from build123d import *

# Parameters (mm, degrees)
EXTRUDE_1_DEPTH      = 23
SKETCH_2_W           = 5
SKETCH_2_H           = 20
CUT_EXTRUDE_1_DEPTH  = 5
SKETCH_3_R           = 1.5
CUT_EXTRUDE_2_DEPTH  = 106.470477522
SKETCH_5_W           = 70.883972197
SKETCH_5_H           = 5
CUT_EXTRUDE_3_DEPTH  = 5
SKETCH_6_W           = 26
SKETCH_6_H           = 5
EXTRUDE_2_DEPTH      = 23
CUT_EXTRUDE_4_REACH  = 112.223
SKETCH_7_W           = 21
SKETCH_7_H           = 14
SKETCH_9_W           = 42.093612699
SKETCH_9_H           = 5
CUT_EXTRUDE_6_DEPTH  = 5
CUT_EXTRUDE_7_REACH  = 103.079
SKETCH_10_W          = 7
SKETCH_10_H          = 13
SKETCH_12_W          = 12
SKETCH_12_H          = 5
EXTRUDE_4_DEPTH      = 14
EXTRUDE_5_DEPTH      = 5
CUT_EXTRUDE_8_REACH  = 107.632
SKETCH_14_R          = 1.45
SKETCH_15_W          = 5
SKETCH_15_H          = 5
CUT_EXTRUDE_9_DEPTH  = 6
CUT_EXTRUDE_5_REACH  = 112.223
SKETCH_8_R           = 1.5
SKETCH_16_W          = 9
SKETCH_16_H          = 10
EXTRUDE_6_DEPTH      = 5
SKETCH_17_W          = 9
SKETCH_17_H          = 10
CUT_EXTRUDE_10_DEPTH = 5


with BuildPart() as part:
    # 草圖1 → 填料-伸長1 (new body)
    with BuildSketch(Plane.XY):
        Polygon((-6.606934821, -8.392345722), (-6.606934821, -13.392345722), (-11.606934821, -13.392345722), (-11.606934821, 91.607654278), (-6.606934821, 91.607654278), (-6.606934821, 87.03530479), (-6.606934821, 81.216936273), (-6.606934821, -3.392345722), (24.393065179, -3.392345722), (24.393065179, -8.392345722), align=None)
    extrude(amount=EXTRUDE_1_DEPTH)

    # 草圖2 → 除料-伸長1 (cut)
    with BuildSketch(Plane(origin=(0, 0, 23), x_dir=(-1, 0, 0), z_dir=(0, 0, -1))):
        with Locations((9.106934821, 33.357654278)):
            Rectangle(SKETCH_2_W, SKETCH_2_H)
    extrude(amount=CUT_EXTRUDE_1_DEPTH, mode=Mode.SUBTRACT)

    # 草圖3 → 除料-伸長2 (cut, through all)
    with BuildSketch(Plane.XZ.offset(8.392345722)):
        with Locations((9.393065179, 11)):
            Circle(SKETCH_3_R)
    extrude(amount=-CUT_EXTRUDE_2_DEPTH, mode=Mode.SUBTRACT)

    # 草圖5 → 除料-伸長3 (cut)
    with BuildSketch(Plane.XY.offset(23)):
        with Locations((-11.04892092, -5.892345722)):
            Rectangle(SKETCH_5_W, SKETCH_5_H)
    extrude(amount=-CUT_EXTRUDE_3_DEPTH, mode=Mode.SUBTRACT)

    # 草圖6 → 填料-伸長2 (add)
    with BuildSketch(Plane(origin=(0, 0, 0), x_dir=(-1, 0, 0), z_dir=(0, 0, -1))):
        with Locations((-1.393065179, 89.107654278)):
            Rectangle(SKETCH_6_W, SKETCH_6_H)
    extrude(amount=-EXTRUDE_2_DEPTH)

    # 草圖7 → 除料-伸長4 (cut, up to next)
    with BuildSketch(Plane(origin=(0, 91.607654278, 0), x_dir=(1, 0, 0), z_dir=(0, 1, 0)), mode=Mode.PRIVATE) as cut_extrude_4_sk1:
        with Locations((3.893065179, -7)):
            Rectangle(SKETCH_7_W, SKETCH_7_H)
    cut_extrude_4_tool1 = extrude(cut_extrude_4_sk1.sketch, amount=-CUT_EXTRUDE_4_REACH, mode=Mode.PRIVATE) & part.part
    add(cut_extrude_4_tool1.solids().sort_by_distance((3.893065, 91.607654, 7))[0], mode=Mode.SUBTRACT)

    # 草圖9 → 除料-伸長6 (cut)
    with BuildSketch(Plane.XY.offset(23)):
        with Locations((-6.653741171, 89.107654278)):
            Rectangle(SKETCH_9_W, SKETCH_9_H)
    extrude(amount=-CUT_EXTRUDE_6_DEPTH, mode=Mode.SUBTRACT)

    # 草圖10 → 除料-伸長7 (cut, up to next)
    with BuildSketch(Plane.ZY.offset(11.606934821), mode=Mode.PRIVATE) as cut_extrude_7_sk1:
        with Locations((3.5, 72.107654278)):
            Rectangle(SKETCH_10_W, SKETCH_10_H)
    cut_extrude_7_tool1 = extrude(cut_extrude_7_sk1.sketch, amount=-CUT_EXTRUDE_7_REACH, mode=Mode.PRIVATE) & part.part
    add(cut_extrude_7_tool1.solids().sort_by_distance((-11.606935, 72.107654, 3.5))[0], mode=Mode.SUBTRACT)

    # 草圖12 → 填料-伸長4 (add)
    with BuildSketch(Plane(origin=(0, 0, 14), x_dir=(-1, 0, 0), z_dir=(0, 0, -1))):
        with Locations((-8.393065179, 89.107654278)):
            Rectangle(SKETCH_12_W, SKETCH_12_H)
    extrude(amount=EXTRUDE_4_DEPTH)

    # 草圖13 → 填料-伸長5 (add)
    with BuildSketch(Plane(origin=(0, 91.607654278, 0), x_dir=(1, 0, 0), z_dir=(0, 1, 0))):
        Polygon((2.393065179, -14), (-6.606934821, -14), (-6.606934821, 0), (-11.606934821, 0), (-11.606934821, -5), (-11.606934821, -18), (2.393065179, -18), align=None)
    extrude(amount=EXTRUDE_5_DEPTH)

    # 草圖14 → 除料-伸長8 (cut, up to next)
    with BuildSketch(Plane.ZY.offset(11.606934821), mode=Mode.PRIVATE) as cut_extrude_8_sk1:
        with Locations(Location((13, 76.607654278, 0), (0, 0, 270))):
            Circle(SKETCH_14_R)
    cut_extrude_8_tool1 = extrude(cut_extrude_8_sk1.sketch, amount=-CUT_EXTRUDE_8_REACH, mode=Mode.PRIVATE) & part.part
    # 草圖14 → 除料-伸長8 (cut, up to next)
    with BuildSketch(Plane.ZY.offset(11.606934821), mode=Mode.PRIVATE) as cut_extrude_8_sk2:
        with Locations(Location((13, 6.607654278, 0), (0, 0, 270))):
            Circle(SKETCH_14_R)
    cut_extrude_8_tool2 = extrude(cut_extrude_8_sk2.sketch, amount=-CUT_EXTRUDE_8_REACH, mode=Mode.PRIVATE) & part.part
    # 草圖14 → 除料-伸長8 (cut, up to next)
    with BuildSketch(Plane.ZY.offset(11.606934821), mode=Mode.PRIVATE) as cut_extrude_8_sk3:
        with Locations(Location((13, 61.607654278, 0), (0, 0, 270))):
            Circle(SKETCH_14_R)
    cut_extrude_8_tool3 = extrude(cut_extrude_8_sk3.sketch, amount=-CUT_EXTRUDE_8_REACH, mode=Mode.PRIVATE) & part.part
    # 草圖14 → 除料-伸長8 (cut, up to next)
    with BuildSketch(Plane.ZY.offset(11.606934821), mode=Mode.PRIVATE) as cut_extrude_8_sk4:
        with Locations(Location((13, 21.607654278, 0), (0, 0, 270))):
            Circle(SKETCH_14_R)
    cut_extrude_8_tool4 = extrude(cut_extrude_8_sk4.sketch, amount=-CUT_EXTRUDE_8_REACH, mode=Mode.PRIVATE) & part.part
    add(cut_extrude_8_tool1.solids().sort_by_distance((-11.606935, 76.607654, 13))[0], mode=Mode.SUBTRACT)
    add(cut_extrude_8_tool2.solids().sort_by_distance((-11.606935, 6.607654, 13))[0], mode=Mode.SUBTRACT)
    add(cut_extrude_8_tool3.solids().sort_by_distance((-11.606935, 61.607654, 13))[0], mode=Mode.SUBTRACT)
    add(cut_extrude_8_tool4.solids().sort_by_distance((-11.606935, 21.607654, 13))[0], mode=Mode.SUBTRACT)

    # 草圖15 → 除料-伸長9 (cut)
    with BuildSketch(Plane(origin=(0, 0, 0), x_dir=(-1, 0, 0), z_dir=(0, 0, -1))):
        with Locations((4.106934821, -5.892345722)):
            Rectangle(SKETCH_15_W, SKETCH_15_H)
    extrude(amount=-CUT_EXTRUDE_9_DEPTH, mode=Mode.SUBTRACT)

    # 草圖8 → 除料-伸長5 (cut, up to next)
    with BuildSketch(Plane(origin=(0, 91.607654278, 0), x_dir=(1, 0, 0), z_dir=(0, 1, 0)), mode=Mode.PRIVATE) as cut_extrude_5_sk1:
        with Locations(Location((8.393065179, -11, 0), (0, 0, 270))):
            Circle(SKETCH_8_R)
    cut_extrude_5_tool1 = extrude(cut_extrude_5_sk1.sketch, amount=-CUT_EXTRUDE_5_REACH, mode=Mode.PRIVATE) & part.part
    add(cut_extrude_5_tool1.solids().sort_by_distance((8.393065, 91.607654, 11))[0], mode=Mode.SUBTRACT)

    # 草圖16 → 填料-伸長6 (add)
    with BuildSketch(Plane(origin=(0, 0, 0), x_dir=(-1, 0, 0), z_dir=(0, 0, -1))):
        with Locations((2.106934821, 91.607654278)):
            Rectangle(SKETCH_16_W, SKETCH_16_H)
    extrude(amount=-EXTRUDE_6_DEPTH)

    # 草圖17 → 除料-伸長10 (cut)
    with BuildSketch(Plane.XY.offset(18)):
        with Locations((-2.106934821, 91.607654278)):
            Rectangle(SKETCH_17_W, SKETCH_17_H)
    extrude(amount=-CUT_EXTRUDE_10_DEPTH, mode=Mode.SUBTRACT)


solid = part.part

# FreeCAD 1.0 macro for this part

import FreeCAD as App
import Part
import Sketcher

V = App.Vector
Q = App.Units.Quantity


def add_polygon(sketch, points):
    """Adds a closed chain of lines whose ends are joined by coincident constraints."""
    first, n = sketch.GeometryCount, len(points)
    for a, b in zip(points, points[1:] + points[:1]):
        sketch.addGeometry(Part.LineSegment(App.Vector(*a, 0), App.Vector(*b, 0)), False)
    for i in range(n):
        sketch.addConstraint(Sketcher.Constraint("Coincident", first + i, 2, first + (i + 1) % n, 1))

doc = App.newDocument("Part")
body = doc.addObject("PartDesign::Body", "Body")

sketch1 = body.newObject("Sketcher::SketchObject", "Sketch")
sketch1.AttachmentSupport = (doc.getObject("XY_Plane"), [""])
sketch1.MapMode = "FlatFace"
add_polygon(sketch1, [(-6.606935, -13.392346), (-6.606935, -8.392346), (24.393065, -8.392346), (24.393065, -3.392346), (-6.606935, -3.392346), (-6.606935, 91.607654), (-11.606935, 91.607654), (-11.606935, -13.392346)])
sketch1.addConstraint(Sketcher.Constraint("Vertical", 0))
sketch1.addConstraint(Sketcher.Constraint("Horizontal", 1))
sketch1.addConstraint(Sketcher.Constraint("Vertical", 2))
sketch1.addConstraint(Sketcher.Constraint("Horizontal", 3))
sketch1.addConstraint(Sketcher.Constraint("Vertical", 4))
sketch1.addConstraint(Sketcher.Constraint("Horizontal", 5))
sketch1.addConstraint(Sketcher.Constraint("Vertical", 6))
sketch1.addConstraint(Sketcher.Constraint("Horizontal", 7))
sketch1.addConstraint(Sketcher.Constraint("Vertical", 0, 2, 3, 2))
sketch1.addConstraint(Sketcher.Constraint("Equal", 7, 0))
sketch1.addConstraint(Sketcher.Constraint("Equal", 0, 2))
sketch1.addConstraint(Sketcher.Constraint("DistanceX", 1, 1, 1, 2, Q("31 mm")))
sketch1.addConstraint(Sketcher.Constraint("DistanceX", 5, 2, 5, 1, Q("5 mm")))
sketch1.addConstraint(Sketcher.Constraint("DistanceY", 4, 1, 4, 2, Q("95 mm")))
sketch1.addConstraint(Sketcher.Constraint("DistanceX", 0, 2, -1, 1, Q("6.606935 mm")))
sketch1.addConstraint(Sketcher.Constraint("DistanceY", 0, 2, -1, 1, Q("8.392346 mm")))
pad1 = body.newObject("PartDesign::Pad", "Pad")
pad1.Profile = sketch1
pad1.Length = 23

sketch2 = body.newObject("Sketcher::SketchObject", "Sketch001")
sketch2.AttachmentSupport = (doc.getObject("XY_Plane"), [""])
sketch2.MapMode = "FlatFace"
sketch2.AttachmentOffset = App.Placement(V(0, 0, 23), App.Rotation())
add_polygon(sketch2, [(-6.606935, 43.357654), (-6.606935, 23.357654), (-11.606935, 23.357654), (-11.606935, 43.357654)])
sketch2.addConstraint(Sketcher.Constraint("Vertical", 0))
sketch2.addConstraint(Sketcher.Constraint("Horizontal", 1))
sketch2.addConstraint(Sketcher.Constraint("Vertical", 2))
sketch2.addConstraint(Sketcher.Constraint("Horizontal", 3))
sketch2.addConstraint(Sketcher.Constraint("DistanceX", 1, 2, 1, 1, Q("5 mm")))
sketch2.addConstraint(Sketcher.Constraint("DistanceY", 0, 2, 0, 1, Q("20 mm")))
sketch2.addConstraint(Sketcher.Constraint("DistanceX", 0, 2, -1, 1, Q("6.606935 mm")))
sketch2.addConstraint(Sketcher.Constraint("DistanceY", -1, 1, 0, 2, Q("23.357654 mm")))
pocket1 = body.newObject("PartDesign::Pocket", "Pocket")
pocket1.Profile = sketch2
pocket1.Length = 5

sketch3 = body.newObject("Sketcher::SketchObject", "Sketch002")
sketch3.AttachmentSupport = (doc.getObject("XZ_Plane"), [""])
sketch3.MapMode = "FlatFace"
sketch3.AttachmentOffset = App.Placement(V(0, 0, 8.392346), App.Rotation())
sketch3.addGeometry(Part.Circle(V(9.393065, 11, 0), V(0, 0, 1), 1.5), False)
sketch3.addConstraint(Sketcher.Constraint("Diameter", 0, Q("3 mm")))
sketch3.addConstraint(Sketcher.Constraint("DistanceY", -1, 1, 0, 3, Q("11 mm")))
sketch3.addConstraint(Sketcher.Constraint("DistanceX", -1, 1, 0, 3, Q("9.393065 mm")))
pocket2 = body.newObject("PartDesign::Pocket", "Pocket001")
pocket2.Profile = sketch3
pocket2.Type = "ThroughAll"

sketch4 = body.newObject("Sketcher::SketchObject", "Sketch003")
sketch4.AttachmentSupport = (doc.getObject("XY_Plane"), [""])
sketch4.MapMode = "FlatFace"
sketch4.AttachmentOffset = App.Placement(V(0, 0, 23), App.Rotation())
add_polygon(sketch4, [(-46.490907, -3.392346), (-46.490907, -8.392346), (24.393065, -8.392346), (24.393065, -3.392346)])
sketch4.addConstraint(Sketcher.Constraint("Vertical", 0))
sketch4.addConstraint(Sketcher.Constraint("Horizontal", 1))
sketch4.addConstraint(Sketcher.Constraint("Vertical", 2))
sketch4.addConstraint(Sketcher.Constraint("Horizontal", 3))
sketch4.addConstraint(Sketcher.Constraint("DistanceY", 0, 2, 0, 1, Q("5 mm")))
sketch4.addConstraint(Sketcher.Constraint("DistanceX", 1, 1, 1, 2, Q("70.883972 mm")))
sketch4.addConstraint(Sketcher.Constraint("DistanceX", 0, 2, -1, 1, Q("46.490907 mm")))
sketch4.addConstraint(Sketcher.Constraint("DistanceY", 0, 2, -1, 1, Q("8.392346 mm")))
pocket3 = body.newObject("PartDesign::Pocket", "Pocket002")
pocket3.Profile = sketch4
pocket3.Length = 5

sketch5 = body.newObject("Sketcher::SketchObject", "Sketch004")
sketch5.AttachmentSupport = (doc.getObject("XY_Plane"), [""])
sketch5.MapMode = "FlatFace"
add_polygon(sketch5, [(14.393065, 91.607654), (14.393065, 86.607654), (-11.606935, 86.607654), (-11.606935, 91.607654)])
sketch5.addConstraint(Sketcher.Constraint("Vertical", 0))
sketch5.addConstraint(Sketcher.Constraint("Horizontal", 1))
sketch5.addConstraint(Sketcher.Constraint("Vertical", 2))
sketch5.addConstraint(Sketcher.Constraint("Horizontal", 3))
sketch5.addConstraint(Sketcher.Constraint("DistanceX", 1, 2, 1, 1, Q("26 mm")))
sketch5.addConstraint(Sketcher.Constraint("DistanceY", 0, 2, 0, 1, Q("5 mm")))
sketch5.addConstraint(Sketcher.Constraint("DistanceX", -1, 1, 0, 2, Q("14.393065 mm")))
sketch5.addConstraint(Sketcher.Constraint("DistanceY", -1, 1, 0, 2, Q("86.607654 mm")))
pad2 = body.newObject("PartDesign::Pad", "Pad001")
pad2.Profile = sketch5
pad2.Length = 23

sketch6 = body.newObject("Sketcher::SketchObject", "Sketch005")
sketch6.AttachmentSupport = (doc.getObject("XZ_Plane"), [""])
sketch6.MapMode = "FlatFace"
sketch6.AttachmentOffset = App.Placement(V(0, 0, -91.607654), App.Rotation())
add_polygon(sketch6, [(-6.606935, 0), (-6.606935, 14), (14.393065, 14), (14.393065, 0)])
sketch6.addConstraint(Sketcher.Constraint("Vertical", 0))
sketch6.addConstraint(Sketcher.Constraint("Horizontal", 1))
sketch6.addConstraint(Sketcher.Constraint("Vertical", 2))
sketch6.addConstraint(Sketcher.Constraint("Horizontal", 3))
sketch6.addConstraint(Sketcher.Constraint("PointOnObject", 2, 2, -1))
sketch6.addConstraint(Sketcher.Constraint("DistanceX", 1, 1, 1, 2, Q("21 mm")))
sketch6.addConstraint(Sketcher.Constraint("DistanceY", 0, 1, 0, 2, Q("14 mm")))
sketch6.addConstraint(Sketcher.Constraint("DistanceX", 0, 2, -1, 1, Q("6.606935 mm")))
pocket4 = body.newObject("PartDesign::Pocket", "Pocket003")
pocket4.Profile = sketch6
pocket4.Type = "UpToFirst"
pocket4.Reversed = True

sketch7 = body.newObject("Sketcher::SketchObject", "Sketch006")
sketch7.AttachmentSupport = (doc.getObject("XY_Plane"), [""])
sketch7.MapMode = "FlatFace"
sketch7.AttachmentOffset = App.Placement(V(0, 0, 23), App.Rotation())
add_polygon(sketch7, [(-27.700548, 91.607654), (-27.700548, 86.607654), (14.393065, 86.607654), (14.393065, 91.607654)])
sketch7.addConstraint(Sketcher.Constraint("Vertical", 0))
sketch7.addConstraint(Sketcher.Constraint("Horizontal", 1))
sketch7.addConstraint(Sketcher.Constraint("Vertical", 2))
sketch7.addConstraint(Sketcher.Constraint("Horizontal", 3))
sketch7.addConstraint(Sketcher.Constraint("DistanceY", 0, 2, 0, 1, Q("5 mm")))
sketch7.addConstraint(Sketcher.Constraint("DistanceX", 1, 1, 1, 2, Q("42.093613 mm")))
sketch7.addConstraint(Sketcher.Constraint("DistanceX", 0, 2, -1, 1, Q("27.700548 mm")))
sketch7.addConstraint(Sketcher.Constraint("DistanceY", -1, 1, 0, 2, Q("86.607654 mm")))
pocket5 = body.newObject("PartDesign::Pocket", "Pocket004")
pocket5.Profile = sketch7
pocket5.Length = 5

sketch8 = body.newObject("Sketcher::SketchObject", "Sketch007")
sketch8.AttachmentSupport = (doc.getObject("YZ_Plane"), [""])
sketch8.MapMode = "FlatFace"
sketch8.AttachmentOffset = App.Placement(V(0, 0, -11.606935), App.Rotation())
add_polygon(sketch8, [(78.607654, 0), (65.607654, 0), (65.607654, 7), (78.607654, 7)])
sketch8.addConstraint(Sketcher.Constraint("Horizontal", 0))
sketch8.addConstraint(Sketcher.Constraint("Vertical", 1))
sketch8.addConstraint(Sketcher.Constraint("Horizontal", 2))
sketch8.addConstraint(Sketcher.Constraint("Vertical", 3))
sketch8.addConstraint(Sketcher.Constraint("PointOnObject", 0, 2, -1))
sketch8.addConstraint(Sketcher.Constraint("DistanceX", 0, 2, 0, 1, Q("13 mm")))
sketch8.addConstraint(Sketcher.Constraint("DistanceY", 1, 1, 1, 2, Q("7 mm")))
sketch8.addConstraint(Sketcher.Constraint("DistanceX", -1, 1, 0, 2, Q("65.607654 mm")))
pocket6 = body.newObject("PartDesign::Pocket", "Pocket005")
pocket6.Profile = sketch8
pocket6.Type = "UpToFirst"
pocket6.Reversed = True

sketch9 = body.newObject("Sketcher::SketchObject", "Sketch008")
sketch9.AttachmentSupport = (doc.getObject("XY_Plane"), [""])
sketch9.MapMode = "FlatFace"
sketch9.AttachmentOffset = App.Placement(V(0, 0, 14), App.Rotation())
add_polygon(sketch9, [(14.393065, 91.607654), (14.393065, 86.607654), (2.393065, 86.607654), (2.393065, 91.607654)])
sketch9.addConstraint(Sketcher.Constraint("Vertical", 0))
sketch9.addConstraint(Sketcher.Constraint("Horizontal", 1))
sketch9.addConstraint(Sketcher.Constraint("Vertical", 2))
sketch9.addConstraint(Sketcher.Constraint("Horizontal", 3))
sketch9.addConstraint(Sketcher.Constraint("DistanceX", 1, 2, 1, 1, Q("12 mm")))
sketch9.addConstraint(Sketcher.Constraint("DistanceY", 0, 2, 0, 1, Q("5 mm")))
sketch9.addConstraint(Sketcher.Constraint("DistanceX", -1, 1, 0, 2, Q("14.393065 mm")))
sketch9.addConstraint(Sketcher.Constraint("DistanceY", -1, 1, 0, 2, Q("86.607654 mm")))
pad3 = body.newObject("PartDesign::Pad", "Pad002")
pad3.Profile = sketch9
pad3.Length = 14
pad3.Reversed = True

sketch10 = body.newObject("Sketcher::SketchObject", "Sketch009")
sketch10.AttachmentSupport = (doc.getObject("XZ_Plane"), [""])
sketch10.MapMode = "FlatFace"
sketch10.AttachmentOffset = App.Placement(V(0, 0, -91.607654), App.Rotation())
add_polygon(sketch10, [(2.393065, 14), (-6.606935, 14), (-6.606935, 0), (-11.606935, 0), (-11.606935, 18), (2.393065, 18)])
sketch10.addConstraint(Sketcher.Constraint("Horizontal", 0))
sketch10.addConstraint(Sketcher.Constraint("Vertical", 1))
sketch10.addConstraint(Sketcher.Constraint("Horizontal", 2))
sketch10.addConstraint(Sketcher.Constraint("Vertical", 3))
sketch10.addConstraint(Sketcher.Constraint("Horizontal", 4))
sketch10.addConstraint(Sketcher.Constraint("Vertical", 5))
sketch10.addConstraint(Sketcher.Constraint("PointOnObject", 1, 2, -1))
sketch10.addConstraint(Sketcher.Constraint("Equal", 4, 1))
sketch10.addConstraint(Sketcher.Constraint("DistanceX", 0, 2, 0, 1, Q("9 mm")))
sketch10.addConstraint(Sketcher.Constraint("DistanceX", 2, 2, 2, 1, Q("5 mm")))
sketch10.addConstraint(Sketcher.Constraint("DistanceY", 3, 1, 3, 2, Q("18 mm")))
sketch10.addConstraint(Sketcher.Constraint("DistanceX", 0, 2, -1, 1, Q("6.606935 mm")))
pad4 = body.newObject("PartDesign::Pad", "Pad003")
pad4.Profile = sketch10
pad4.Length = 5
pad4.Reversed = True

sketch11 = body.newObject("Sketcher::SketchObject", "Sketch010")
sketch11.AttachmentSupport = (doc.getObject("YZ_Plane"), [""])
sketch11.MapMode = "FlatFace"
sketch11.AttachmentOffset = App.Placement(V(0, 0, -11.606935), App.Rotation())
sketch11.addGeometry(Part.Circle(V(76.607654, 13, 0), V(0, 0, 1), 1.45), False)
sketch11.addConstraint(Sketcher.Constraint("Diameter", 0, Q("2.9 mm")))
sketch11.addConstraint(Sketcher.Constraint("DistanceY", -1, 1, 0, 3, Q("13 mm")))
sketch11.addConstraint(Sketcher.Constraint("DistanceX", -1, 1, 0, 3, Q("76.607654 mm")))
pocket7 = body.newObject("PartDesign::Pocket", "Pocket006")
pocket7.Profile = sketch11
pocket7.Type = "UpToFirst"
pocket7.Reversed = True

sketch12 = body.newObject("Sketcher::SketchObject", "Sketch011")
sketch12.AttachmentSupport = (doc.getObject("YZ_Plane"), [""])
sketch12.MapMode = "FlatFace"
sketch12.AttachmentOffset = App.Placement(V(0, 0, -11.606935), App.Rotation())
sketch12.addGeometry(Part.Circle(V(6.607654, 13, 0), V(0, 0, 1), 1.45), False)
sketch12.addConstraint(Sketcher.Constraint("Diameter", 0, Q("2.9 mm")))
sketch12.addConstraint(Sketcher.Constraint("DistanceY", -1, 1, 0, 3, Q("13 mm")))
sketch12.addConstraint(Sketcher.Constraint("DistanceX", -1, 1, 0, 3, Q("6.607654 mm")))
pocket8 = body.newObject("PartDesign::Pocket", "Pocket007")
pocket8.Profile = sketch12
pocket8.Type = "UpToFirst"
pocket8.Reversed = True

sketch13 = body.newObject("Sketcher::SketchObject", "Sketch012")
sketch13.AttachmentSupport = (doc.getObject("YZ_Plane"), [""])
sketch13.MapMode = "FlatFace"
sketch13.AttachmentOffset = App.Placement(V(0, 0, -11.606935), App.Rotation())
sketch13.addGeometry(Part.Circle(V(61.607654, 13, 0), V(0, 0, 1), 1.45), False)
sketch13.addConstraint(Sketcher.Constraint("Diameter", 0, Q("2.9 mm")))
sketch13.addConstraint(Sketcher.Constraint("DistanceY", -1, 1, 0, 3, Q("13 mm")))
sketch13.addConstraint(Sketcher.Constraint("DistanceX", -1, 1, 0, 3, Q("61.607654 mm")))
pocket9 = body.newObject("PartDesign::Pocket", "Pocket008")
pocket9.Profile = sketch13
pocket9.Type = "UpToFirst"
pocket9.Reversed = True

sketch14 = body.newObject("Sketcher::SketchObject", "Sketch013")
sketch14.AttachmentSupport = (doc.getObject("YZ_Plane"), [""])
sketch14.MapMode = "FlatFace"
sketch14.AttachmentOffset = App.Placement(V(0, 0, -11.606935), App.Rotation())
sketch14.addGeometry(Part.Circle(V(21.607654, 13, 0), V(0, 0, 1), 1.45), False)
sketch14.addConstraint(Sketcher.Constraint("Diameter", 0, Q("2.9 mm")))
sketch14.addConstraint(Sketcher.Constraint("DistanceY", -1, 1, 0, 3, Q("13 mm")))
sketch14.addConstraint(Sketcher.Constraint("DistanceX", -1, 1, 0, 3, Q("21.607654 mm")))
pocket10 = body.newObject("PartDesign::Pocket", "Pocket009")
pocket10.Profile = sketch14
pocket10.Type = "UpToFirst"
pocket10.Reversed = True

sketch15 = body.newObject("Sketcher::SketchObject", "Sketch014")
sketch15.AttachmentSupport = (doc.getObject("XY_Plane"), [""])
sketch15.MapMode = "FlatFace"
add_polygon(sketch15, [(-1.606935, -3.392346), (-1.606935, -8.392346), (-6.606935, -8.392346), (-6.606935, -3.392346)])
sketch15.addConstraint(Sketcher.Constraint("Vertical", 0))
sketch15.addConstraint(Sketcher.Constraint("Horizontal", 1))
sketch15.addConstraint(Sketcher.Constraint("Vertical", 2))
sketch15.addConstraint(Sketcher.Constraint("Horizontal", 3))
sketch15.addConstraint(Sketcher.Constraint("Equal", 3, 0))
sketch15.addConstraint(Sketcher.Constraint("DistanceX", 1, 2, 1, 1, Q("5 mm")))
sketch15.addConstraint(Sketcher.Constraint("DistanceX", 0, 2, -1, 1, Q("1.606935 mm")))
sketch15.addConstraint(Sketcher.Constraint("DistanceY", 0, 2, -1, 1, Q("8.392346 mm")))
pocket11 = body.newObject("PartDesign::Pocket", "Pocket010")
pocket11.Profile = sketch15
pocket11.Length = 6
pocket11.Reversed = True

sketch16 = body.newObject("Sketcher::SketchObject", "Sketch015")
sketch16.AttachmentSupport = (doc.getObject("XZ_Plane"), [""])
sketch16.MapMode = "FlatFace"
sketch16.AttachmentOffset = App.Placement(V(0, 0, -91.607654), App.Rotation())
sketch16.addGeometry(Part.Circle(V(8.393065, 11, 0), V(0, 0, 1), 1.5), False)
sketch16.addConstraint(Sketcher.Constraint("Diameter", 0, Q("3 mm")))
sketch16.addConstraint(Sketcher.Constraint("DistanceY", -1, 1, 0, 3, Q("11 mm")))
sketch16.addConstraint(Sketcher.Constraint("DistanceX", -1, 1, 0, 3, Q("8.393065 mm")))
pocket12 = body.newObject("PartDesign::Pocket", "Pocket011")
pocket12.Profile = sketch16
pocket12.Type = "UpToFirst"
pocket12.Reversed = True

sketch17 = body.newObject("Sketcher::SketchObject", "Sketch016")
sketch17.AttachmentSupport = (doc.getObject("XY_Plane"), [""])
sketch17.MapMode = "FlatFace"
add_polygon(sketch17, [(2.393065, 96.607654), (2.393065, 86.607654), (-6.606935, 86.607654), (-6.606935, 96.607654)])
sketch17.addConstraint(Sketcher.Constraint("Vertical", 0))
sketch17.addConstraint(Sketcher.Constraint("Horizontal", 1))
sketch17.addConstraint(Sketcher.Constraint("Vertical", 2))
sketch17.addConstraint(Sketcher.Constraint("Horizontal", 3))
sketch17.addConstraint(Sketcher.Constraint("DistanceX", 1, 2, 1, 1, Q("9 mm")))
sketch17.addConstraint(Sketcher.Constraint("DistanceY", 0, 2, 0, 1, Q("10 mm")))
sketch17.addConstraint(Sketcher.Constraint("DistanceX", -1, 1, 0, 2, Q("2.393065 mm")))
sketch17.addConstraint(Sketcher.Constraint("DistanceY", -1, 1, 0, 2, Q("86.607654 mm")))
pad5 = body.newObject("PartDesign::Pad", "Pad004")
pad5.Profile = sketch17
pad5.Length = 5

sketch18 = body.newObject("Sketcher::SketchObject", "Sketch017")
sketch18.AttachmentSupport = (doc.getObject("XY_Plane"), [""])
sketch18.MapMode = "FlatFace"
sketch18.AttachmentOffset = App.Placement(V(0, 0, 18), App.Rotation())
add_polygon(sketch18, [(-6.606935, 96.607654), (-6.606935, 86.607654), (2.393065, 86.607654), (2.393065, 96.607654)])
sketch18.addConstraint(Sketcher.Constraint("Vertical", 0))
sketch18.addConstraint(Sketcher.Constraint("Horizontal", 1))
sketch18.addConstraint(Sketcher.Constraint("Vertical", 2))
sketch18.addConstraint(Sketcher.Constraint("Horizontal", 3))
sketch18.addConstraint(Sketcher.Constraint("DistanceX", 1, 1, 1, 2, Q("9 mm")))
sketch18.addConstraint(Sketcher.Constraint("DistanceY", 0, 2, 0, 1, Q("10 mm")))
sketch18.addConstraint(Sketcher.Constraint("DistanceX", 0, 2, -1, 1, Q("6.606935 mm")))
sketch18.addConstraint(Sketcher.Constraint("DistanceY", -1, 1, 0, 2, Q("86.607654 mm")))
pocket13 = body.newObject("PartDesign::Pocket", "Pocket012")
pocket13.Profile = sketch18
pocket13.Length = 5

doc.recompute()
